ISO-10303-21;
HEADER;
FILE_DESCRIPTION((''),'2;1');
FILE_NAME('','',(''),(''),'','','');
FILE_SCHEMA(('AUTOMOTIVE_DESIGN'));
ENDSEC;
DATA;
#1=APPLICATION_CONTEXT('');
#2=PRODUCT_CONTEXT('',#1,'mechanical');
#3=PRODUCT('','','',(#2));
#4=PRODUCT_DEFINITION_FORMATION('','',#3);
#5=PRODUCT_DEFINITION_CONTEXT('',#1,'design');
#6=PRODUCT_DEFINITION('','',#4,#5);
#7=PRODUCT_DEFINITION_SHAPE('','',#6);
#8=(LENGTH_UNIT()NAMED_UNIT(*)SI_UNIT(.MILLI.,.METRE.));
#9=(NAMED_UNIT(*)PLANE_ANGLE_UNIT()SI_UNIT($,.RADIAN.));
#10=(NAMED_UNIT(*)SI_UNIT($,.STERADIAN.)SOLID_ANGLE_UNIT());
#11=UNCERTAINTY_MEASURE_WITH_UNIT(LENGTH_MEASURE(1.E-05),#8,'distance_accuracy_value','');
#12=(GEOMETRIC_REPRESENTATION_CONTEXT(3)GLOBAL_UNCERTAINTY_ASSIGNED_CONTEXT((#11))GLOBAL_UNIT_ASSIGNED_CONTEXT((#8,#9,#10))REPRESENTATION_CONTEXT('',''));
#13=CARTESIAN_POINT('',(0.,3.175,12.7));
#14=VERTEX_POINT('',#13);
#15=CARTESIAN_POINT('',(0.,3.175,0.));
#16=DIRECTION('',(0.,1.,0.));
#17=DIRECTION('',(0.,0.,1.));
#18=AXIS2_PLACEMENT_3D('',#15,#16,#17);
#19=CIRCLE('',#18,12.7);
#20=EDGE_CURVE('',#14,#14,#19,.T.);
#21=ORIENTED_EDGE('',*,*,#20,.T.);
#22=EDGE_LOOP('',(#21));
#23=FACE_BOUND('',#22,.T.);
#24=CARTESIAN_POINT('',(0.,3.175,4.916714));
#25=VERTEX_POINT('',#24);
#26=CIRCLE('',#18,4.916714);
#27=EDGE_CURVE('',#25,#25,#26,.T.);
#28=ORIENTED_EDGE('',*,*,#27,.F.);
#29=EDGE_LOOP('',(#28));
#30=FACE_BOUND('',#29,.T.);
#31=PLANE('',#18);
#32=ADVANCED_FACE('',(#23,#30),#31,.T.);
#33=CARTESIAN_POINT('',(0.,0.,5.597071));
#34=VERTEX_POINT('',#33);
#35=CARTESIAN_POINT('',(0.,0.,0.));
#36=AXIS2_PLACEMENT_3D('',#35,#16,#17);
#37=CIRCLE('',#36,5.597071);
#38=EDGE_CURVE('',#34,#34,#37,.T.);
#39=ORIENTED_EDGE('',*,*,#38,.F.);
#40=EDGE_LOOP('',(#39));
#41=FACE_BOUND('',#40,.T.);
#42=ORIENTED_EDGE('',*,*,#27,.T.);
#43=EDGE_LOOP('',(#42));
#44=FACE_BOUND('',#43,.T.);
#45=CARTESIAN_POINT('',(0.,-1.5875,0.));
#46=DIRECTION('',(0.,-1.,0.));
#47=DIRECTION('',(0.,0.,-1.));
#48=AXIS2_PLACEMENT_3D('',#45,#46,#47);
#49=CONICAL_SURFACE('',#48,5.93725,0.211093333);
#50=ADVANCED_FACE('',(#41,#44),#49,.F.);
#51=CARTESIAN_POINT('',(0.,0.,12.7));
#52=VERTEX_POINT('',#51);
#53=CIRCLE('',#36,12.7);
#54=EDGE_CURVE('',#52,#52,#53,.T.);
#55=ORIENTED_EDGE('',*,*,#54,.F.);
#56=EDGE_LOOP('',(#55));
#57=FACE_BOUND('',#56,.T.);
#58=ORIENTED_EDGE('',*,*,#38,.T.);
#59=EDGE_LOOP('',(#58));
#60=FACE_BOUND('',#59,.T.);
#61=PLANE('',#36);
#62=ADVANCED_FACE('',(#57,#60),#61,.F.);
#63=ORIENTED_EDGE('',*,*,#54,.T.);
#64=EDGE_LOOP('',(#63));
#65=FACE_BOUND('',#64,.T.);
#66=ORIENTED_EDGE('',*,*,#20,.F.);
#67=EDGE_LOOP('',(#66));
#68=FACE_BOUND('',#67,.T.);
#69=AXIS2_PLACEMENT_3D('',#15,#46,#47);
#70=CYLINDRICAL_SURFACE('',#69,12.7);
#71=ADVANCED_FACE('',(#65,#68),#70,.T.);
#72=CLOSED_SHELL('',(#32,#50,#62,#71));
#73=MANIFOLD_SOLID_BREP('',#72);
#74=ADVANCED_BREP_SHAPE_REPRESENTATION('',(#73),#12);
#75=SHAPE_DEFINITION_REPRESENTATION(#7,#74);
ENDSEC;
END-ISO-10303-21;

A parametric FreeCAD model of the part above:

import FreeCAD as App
import Part
import Sketcher
Q = App.Units.Quantity


def add_polygon(sketch, points):
    """Adds a closed chain of lines whose ends are joined by coincident constraints."""
    first, n = sketch.GeometryCount, len(points)
    for a, b in zip(points, points[1:] + points[:1]):
        sketch.addGeometry(Part.LineSegment(App.Vector(*a, 0), App.Vector(*b, 0)), False)
    for i in range(n):
        sketch.addConstraint(Sketcher.Constraint("Coincident", first + i, 2, first + (i + 1) % n, 1))

doc = App.newDocument("Part")
body = doc.addObject("PartDesign::Body", "Body")

sketch1 = body.newObject("Sketcher::SketchObject", "Sketch")
sketch1.AttachmentSupport = (doc.getObject("XZ_Plane"), [""])
sketch1.MapMode = "FlatFace"
sketch1.addGeometry([
    Part.Circle(App.Vector(0, 0, 0), App.Vector(0, 0, 1), 12.7),
    Part.Circle(App.Vector(0, 0, 0), App.Vector(0, 0, 1), 3.556),
], False)
sketch1.addConstraint([
    Sketcher.Constraint("Coincident", 0, 3, -1, 1),
    Sketcher.Constraint("Coincident", 1, 3, -1, 1),
    Sketcher.Constraint("Diameter", 0, Q("1 in")),
    Sketcher.Constraint("Diameter", 1, Q("0.28 in")),
])
pad1 = body.newObject("PartDesign::Pad", "Pad")
pad1.Profile = sketch1
pad1.Length = Q("0.125 in")
pad1.Reversed = True

sketch2 = body.newObject("Sketcher::SketchObject", "Sketch001")
sketch2.AttachmentSupport = (doc.getObject("XY_Plane"), [""])
sketch2.MapMode = "FlatFace"
add_polygon(sketch2, [(3.556, 3.96875), (3.556, -1.5875), (5.93725, -1.5875), (4.746625, 3.96875)])
sketch2.addConstraint([
    Sketcher.Constraint("Vertical", 0),
    Sketcher.Constraint("Horizontal", 1),
    Sketcher.Constraint("Horizontal", 3),
    Sketcher.Constraint("DistanceX", 1, 1, 1, 2, Q("0.09375 in")),
    Sketcher.Constraint("DistanceX", 3, 2, 3, 1, Q("0.046875 in")),
    Sketcher.Constraint("DistanceY", 0, 2, 0, 1, Q("0.21875 in")),
    Sketcher.Constraint("DistanceX", -1, 1, 0, 2, Q("0.14 in")),
    Sketcher.Constraint("DistanceY", 0, 2, -1, 1, Q("0.0625 in")),
])
groove = body.newObject("PartDesign::Groove", "Groove")
groove.Profile = sketch2
groove.ReferenceAxis = (sketch2, ["V_Axis"])
groove.Angle = 360

doc.recompute()
